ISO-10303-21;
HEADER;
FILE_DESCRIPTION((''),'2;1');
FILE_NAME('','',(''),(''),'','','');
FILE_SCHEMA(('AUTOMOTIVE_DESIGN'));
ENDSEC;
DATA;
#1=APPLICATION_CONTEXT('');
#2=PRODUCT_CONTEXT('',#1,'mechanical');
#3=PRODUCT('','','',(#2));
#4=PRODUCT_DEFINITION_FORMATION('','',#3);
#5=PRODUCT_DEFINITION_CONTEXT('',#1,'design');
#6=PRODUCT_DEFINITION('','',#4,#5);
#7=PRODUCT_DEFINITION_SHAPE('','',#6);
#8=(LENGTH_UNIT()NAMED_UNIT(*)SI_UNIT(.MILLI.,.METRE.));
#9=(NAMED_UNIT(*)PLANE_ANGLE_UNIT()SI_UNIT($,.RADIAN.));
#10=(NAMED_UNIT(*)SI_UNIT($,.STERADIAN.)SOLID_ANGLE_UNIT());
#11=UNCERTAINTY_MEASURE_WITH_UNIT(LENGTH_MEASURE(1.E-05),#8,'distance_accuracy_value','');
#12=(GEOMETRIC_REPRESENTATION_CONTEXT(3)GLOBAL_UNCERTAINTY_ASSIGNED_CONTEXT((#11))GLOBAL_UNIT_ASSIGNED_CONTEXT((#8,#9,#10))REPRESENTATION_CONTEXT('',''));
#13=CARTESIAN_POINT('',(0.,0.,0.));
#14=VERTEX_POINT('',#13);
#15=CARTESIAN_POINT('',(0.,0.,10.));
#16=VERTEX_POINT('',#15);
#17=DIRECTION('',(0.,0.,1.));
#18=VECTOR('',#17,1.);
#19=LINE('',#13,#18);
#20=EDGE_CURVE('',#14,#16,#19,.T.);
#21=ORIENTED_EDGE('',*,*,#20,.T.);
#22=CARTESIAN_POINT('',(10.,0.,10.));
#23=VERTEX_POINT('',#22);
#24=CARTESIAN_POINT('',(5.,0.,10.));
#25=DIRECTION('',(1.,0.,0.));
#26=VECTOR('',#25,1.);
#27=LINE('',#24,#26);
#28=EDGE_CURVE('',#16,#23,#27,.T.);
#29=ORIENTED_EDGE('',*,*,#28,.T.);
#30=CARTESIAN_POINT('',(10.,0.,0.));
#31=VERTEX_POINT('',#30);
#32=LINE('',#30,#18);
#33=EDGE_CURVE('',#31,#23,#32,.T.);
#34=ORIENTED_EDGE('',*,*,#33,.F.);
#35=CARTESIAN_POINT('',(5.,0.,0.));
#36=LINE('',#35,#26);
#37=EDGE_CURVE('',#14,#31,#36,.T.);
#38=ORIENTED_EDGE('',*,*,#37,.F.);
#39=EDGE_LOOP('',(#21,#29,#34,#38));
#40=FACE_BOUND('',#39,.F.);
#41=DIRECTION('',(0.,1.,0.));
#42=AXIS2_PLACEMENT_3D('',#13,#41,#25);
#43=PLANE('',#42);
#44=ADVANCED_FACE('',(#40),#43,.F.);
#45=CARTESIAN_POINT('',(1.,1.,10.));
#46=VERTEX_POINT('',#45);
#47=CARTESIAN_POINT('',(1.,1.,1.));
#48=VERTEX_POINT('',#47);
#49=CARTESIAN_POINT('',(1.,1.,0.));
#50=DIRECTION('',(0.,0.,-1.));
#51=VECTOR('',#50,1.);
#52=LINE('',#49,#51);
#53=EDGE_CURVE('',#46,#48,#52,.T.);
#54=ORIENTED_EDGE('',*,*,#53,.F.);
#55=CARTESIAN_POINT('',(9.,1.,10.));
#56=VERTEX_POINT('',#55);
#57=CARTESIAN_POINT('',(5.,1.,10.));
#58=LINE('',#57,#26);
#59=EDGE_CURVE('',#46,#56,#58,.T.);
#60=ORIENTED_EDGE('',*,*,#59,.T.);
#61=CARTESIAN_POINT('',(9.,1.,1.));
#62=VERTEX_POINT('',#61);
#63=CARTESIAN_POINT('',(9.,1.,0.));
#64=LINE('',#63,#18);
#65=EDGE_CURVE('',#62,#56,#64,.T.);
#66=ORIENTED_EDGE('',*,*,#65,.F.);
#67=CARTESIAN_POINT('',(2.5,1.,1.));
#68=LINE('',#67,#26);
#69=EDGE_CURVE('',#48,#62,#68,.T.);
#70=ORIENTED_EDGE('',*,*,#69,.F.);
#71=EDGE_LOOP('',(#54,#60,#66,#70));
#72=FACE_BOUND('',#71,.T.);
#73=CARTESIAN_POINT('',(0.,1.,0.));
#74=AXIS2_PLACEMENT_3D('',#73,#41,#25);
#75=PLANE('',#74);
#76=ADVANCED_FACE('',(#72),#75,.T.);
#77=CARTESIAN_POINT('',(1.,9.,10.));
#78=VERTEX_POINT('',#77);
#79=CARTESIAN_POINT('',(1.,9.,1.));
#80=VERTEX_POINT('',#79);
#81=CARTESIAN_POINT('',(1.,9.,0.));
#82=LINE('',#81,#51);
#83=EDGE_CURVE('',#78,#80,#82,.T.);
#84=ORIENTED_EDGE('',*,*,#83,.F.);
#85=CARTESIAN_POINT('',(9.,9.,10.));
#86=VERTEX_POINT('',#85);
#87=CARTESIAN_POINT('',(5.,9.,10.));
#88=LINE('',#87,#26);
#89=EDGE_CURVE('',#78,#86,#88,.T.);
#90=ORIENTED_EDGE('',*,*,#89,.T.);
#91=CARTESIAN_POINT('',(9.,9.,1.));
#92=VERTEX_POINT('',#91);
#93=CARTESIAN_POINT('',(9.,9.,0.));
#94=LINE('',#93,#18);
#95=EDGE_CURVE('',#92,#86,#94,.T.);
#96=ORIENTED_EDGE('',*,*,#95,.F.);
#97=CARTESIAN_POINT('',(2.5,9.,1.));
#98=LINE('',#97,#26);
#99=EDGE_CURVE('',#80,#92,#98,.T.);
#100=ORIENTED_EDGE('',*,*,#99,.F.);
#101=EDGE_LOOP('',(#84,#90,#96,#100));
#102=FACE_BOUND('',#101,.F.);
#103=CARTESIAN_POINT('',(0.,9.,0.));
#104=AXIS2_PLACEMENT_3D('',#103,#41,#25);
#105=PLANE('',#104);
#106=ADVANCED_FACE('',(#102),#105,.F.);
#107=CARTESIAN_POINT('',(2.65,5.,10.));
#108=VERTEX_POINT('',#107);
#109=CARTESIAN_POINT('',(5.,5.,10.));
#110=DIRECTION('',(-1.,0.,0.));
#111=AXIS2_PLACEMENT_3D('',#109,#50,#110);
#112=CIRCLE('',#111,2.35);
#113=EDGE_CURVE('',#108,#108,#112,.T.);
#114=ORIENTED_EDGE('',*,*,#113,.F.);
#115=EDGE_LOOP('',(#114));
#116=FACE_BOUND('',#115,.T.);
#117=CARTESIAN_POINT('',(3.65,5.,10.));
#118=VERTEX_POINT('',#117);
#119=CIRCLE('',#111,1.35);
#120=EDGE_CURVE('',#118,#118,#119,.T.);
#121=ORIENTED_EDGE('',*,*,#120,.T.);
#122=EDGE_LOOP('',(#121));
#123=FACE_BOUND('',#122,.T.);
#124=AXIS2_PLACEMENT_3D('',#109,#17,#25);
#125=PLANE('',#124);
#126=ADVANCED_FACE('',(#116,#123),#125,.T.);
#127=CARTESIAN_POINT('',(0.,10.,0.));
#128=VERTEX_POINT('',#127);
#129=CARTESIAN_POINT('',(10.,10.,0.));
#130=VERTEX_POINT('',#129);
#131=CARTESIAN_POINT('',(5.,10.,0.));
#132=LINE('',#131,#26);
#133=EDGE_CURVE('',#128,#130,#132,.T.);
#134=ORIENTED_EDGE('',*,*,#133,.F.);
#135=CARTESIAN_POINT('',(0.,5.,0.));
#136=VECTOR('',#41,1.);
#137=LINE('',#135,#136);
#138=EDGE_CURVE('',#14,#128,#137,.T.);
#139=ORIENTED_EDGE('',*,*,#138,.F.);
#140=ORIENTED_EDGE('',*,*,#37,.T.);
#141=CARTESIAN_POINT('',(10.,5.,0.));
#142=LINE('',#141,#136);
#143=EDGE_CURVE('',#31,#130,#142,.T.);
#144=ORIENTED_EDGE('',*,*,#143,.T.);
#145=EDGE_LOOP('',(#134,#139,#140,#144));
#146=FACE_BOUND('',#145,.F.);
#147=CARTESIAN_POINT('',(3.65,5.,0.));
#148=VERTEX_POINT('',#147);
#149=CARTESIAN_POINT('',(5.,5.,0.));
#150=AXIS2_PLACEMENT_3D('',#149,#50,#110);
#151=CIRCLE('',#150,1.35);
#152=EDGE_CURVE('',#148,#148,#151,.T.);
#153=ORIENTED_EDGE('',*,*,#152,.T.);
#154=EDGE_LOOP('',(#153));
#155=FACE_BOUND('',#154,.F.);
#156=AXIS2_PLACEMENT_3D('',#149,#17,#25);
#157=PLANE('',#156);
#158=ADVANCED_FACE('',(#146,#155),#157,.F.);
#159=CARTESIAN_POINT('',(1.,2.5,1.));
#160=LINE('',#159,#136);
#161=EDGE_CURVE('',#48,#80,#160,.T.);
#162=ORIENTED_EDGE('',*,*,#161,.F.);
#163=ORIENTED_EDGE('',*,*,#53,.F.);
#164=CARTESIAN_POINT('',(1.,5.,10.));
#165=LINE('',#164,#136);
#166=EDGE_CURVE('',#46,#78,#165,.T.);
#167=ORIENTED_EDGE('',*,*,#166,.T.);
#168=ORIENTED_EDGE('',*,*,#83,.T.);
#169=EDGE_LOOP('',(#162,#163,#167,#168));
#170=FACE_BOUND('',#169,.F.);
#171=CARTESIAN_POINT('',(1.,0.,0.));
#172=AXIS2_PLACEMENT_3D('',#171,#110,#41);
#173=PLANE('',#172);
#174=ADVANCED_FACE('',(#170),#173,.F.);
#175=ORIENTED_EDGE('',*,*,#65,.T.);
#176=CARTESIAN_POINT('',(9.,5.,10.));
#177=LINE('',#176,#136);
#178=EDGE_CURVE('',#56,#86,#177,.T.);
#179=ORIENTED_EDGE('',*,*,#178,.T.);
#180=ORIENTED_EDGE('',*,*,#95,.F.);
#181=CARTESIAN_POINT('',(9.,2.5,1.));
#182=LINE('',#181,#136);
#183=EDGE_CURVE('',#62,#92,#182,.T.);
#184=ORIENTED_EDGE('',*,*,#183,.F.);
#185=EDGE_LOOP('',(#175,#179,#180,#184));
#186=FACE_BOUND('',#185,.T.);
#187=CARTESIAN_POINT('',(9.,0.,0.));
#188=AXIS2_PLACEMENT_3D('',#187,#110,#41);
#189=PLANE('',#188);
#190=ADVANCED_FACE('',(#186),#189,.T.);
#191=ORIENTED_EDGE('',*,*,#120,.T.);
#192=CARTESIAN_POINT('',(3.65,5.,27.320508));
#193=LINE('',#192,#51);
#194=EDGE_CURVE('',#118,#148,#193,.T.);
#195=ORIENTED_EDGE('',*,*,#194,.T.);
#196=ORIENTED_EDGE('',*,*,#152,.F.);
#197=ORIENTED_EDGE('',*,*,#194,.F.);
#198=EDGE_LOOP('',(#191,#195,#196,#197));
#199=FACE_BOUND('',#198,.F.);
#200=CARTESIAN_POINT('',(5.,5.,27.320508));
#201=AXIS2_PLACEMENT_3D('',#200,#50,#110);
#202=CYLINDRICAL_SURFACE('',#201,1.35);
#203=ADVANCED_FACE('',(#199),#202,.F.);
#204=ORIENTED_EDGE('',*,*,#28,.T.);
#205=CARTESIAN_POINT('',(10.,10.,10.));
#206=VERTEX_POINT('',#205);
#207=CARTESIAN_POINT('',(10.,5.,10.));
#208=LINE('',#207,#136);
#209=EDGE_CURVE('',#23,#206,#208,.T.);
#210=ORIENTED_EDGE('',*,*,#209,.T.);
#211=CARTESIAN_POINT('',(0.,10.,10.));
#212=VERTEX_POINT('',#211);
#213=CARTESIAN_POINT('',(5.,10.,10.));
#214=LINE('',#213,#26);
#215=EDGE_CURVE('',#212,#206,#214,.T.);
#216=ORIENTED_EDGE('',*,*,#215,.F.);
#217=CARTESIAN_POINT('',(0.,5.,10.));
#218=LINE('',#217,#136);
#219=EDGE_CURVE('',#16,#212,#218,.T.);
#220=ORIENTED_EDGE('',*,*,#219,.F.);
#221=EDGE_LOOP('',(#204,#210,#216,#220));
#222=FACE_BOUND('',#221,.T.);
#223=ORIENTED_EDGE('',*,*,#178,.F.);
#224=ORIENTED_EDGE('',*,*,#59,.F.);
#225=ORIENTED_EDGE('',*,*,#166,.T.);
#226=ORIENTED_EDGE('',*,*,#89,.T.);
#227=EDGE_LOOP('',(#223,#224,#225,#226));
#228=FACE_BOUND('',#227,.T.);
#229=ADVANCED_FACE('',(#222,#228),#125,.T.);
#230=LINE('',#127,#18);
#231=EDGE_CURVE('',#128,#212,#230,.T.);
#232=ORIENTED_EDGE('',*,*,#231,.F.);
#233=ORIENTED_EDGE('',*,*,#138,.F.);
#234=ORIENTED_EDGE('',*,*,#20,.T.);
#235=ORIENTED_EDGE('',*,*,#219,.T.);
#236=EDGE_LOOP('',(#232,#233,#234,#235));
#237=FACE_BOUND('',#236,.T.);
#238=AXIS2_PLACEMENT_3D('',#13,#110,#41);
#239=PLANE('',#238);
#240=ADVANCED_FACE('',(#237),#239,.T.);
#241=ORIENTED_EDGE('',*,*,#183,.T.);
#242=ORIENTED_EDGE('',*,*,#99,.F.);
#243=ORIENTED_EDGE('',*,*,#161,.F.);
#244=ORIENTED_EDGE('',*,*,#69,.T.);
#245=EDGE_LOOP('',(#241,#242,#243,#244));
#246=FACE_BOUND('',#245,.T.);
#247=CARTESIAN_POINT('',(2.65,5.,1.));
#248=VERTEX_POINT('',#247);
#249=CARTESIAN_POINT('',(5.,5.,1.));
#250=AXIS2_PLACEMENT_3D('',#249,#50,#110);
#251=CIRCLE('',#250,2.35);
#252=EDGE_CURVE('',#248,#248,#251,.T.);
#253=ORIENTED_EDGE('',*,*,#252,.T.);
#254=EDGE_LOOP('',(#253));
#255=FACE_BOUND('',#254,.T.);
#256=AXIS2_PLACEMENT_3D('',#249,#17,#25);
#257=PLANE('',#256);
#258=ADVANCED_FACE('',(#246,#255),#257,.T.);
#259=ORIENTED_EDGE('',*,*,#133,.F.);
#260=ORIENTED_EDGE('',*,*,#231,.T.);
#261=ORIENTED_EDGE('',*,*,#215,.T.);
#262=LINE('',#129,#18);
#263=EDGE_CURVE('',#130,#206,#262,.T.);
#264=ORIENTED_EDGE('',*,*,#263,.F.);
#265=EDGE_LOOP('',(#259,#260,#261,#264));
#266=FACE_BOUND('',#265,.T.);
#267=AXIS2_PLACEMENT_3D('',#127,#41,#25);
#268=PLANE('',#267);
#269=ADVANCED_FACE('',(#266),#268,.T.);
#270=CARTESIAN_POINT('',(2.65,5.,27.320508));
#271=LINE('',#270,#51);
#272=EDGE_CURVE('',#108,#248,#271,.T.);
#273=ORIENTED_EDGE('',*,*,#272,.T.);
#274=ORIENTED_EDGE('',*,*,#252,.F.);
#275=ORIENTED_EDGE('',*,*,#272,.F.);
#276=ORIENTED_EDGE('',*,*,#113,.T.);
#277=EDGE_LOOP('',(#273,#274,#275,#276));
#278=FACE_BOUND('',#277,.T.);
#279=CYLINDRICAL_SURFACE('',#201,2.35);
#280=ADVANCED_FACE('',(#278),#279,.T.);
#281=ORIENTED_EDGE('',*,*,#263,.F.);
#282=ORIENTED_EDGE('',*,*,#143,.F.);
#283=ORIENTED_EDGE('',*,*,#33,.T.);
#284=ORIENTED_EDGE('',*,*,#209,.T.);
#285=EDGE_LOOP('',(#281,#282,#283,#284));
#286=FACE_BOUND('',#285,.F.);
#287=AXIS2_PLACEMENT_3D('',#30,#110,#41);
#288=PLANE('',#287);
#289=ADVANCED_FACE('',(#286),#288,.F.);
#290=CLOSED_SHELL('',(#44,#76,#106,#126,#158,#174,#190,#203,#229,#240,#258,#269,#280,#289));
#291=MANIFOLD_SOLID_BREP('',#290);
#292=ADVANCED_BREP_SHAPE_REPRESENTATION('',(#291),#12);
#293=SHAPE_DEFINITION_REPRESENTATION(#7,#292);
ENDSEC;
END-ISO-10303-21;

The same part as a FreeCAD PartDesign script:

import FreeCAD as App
import Part
import Sketcher
Q = App.Units.Quantity


def faces_at(feature, points):
    """Names of the faces that lie closest to the given points."""
    faces = feature.Shape.Faces
    near = lambda p: min(range(len(faces)), key=lambda i: faces[i].distToShape(Part.Vertex(*p))[0])
    return sorted({f"Face{near(p) + 1}" for p in points})

doc = App.newDocument("Part")
params = doc.addObject("Spreadsheet::Sheet", "Params")
for row, (alias, value) in enumerate([
    ("sketch1_width", "10 mm"),
    ("pad1_length", "10 mm"),
    ("sketch2_diameter", "2.7 mm"),
    ("hole_diameter", "2.7 mm"),
    ("thickness_wall", "1 mm"),
], start=1):
    params.set(f"A{row}", alias)
    params.set(f"B{row}", "=" + value)
    params.setAlias(f"B{row}", alias)

body = doc.addObject("PartDesign::Body", "Body")

# Sketch on XY plane
sketch1 = body.newObject("Sketcher::SketchObject", "Sketch")
sketch1.AttachmentSupport = (doc.getObject("XY_Plane"), [""])
sketch1.MapMode = "FlatFace"
sketch1.addGeometry([
    Part.LineSegment(App.Vector(0, 10, 0), App.Vector(0, 0, 0)),
    Part.LineSegment(App.Vector(0, 0, 0), App.Vector(10, 0, 0)),
    Part.LineSegment(App.Vector(10, 0, 0), App.Vector(10, 10, 0)),
    Part.LineSegment(App.Vector(10, 10, 0), App.Vector(0, 10, 0)),
], False)
sketch1.addConstraint([
    Sketcher.Constraint("Coincident", 0, 2, 1, 1),
    Sketcher.Constraint("Coincident", 1, 2, 2, 1),
    Sketcher.Constraint("Coincident", 2, 2, 3, 1),
    Sketcher.Constraint("Coincident", 3, 2, 0, 1),
    Sketcher.Constraint("Vertical", 0),
    Sketcher.Constraint("Horizontal", 1),
    Sketcher.Constraint("Vertical", 2),
    Sketcher.Constraint("Horizontal", 3),
    Sketcher.Constraint("Coincident", 0, 2, -1, 1),
    Sketcher.Constraint("Equal", 3, 0),
    Sketcher.Constraint("DistanceX", 1, 1, 1, 2, Q("10 mm")),
])
sketch1.setExpression("Constraints[10]", "Params.sketch1_width")
pad1 = body.newObject("PartDesign::Pad", "Pad")
pad1.Profile = sketch1
pad1.setExpression("Length", "Params.pad1_length")

# Sketch on XY plane
sketch2 = body.newObject("Sketcher::SketchObject", "Sketch001")
sketch2.AttachmentSupport = (doc.getObject("XY_Plane"), [""])
sketch2.MapMode = "FlatFace"
sketch2.AttachmentOffset = App.Placement(App.Vector(0, 0, 10), App.Rotation())
sketch2.addGeometry(Part.Circle(App.Vector(5, 5, 0), App.Vector(0, 0, 1), 1.4), False)
sketch2.addConstraint([
    Sketcher.Constraint("Diameter", 0, Q("2.7 mm")),
    Sketcher.Constraint("DistanceX", -1, 1, 0, 3, Q("5 mm")),
    Sketcher.Constraint("DistanceY", -1, 1, 0, 3, Q("5 mm")),
])
sketch2.setExpression("Constraints[0]", "Params.sketch2_diameter")
doc.recompute()
hole = body.newObject("PartDesign::Hole", "Hole")
hole.Profile = sketch2
hole.ThreadType = "None"
hole.setExpression("Diameter", "Params.hole_diameter")
hole.DepthType = "ThroughAll"
doc.recompute()

thickness = body.newObject("PartDesign::Thickness", "Thickness")
thickness.Base = (hole, faces_at(hole, [(3, 3, 10)]))
thickness.setExpression("Value", "Params.thickness_wall")
thickness.Reversed = True
thickness.Join = "Arc"

doc.recompute()
